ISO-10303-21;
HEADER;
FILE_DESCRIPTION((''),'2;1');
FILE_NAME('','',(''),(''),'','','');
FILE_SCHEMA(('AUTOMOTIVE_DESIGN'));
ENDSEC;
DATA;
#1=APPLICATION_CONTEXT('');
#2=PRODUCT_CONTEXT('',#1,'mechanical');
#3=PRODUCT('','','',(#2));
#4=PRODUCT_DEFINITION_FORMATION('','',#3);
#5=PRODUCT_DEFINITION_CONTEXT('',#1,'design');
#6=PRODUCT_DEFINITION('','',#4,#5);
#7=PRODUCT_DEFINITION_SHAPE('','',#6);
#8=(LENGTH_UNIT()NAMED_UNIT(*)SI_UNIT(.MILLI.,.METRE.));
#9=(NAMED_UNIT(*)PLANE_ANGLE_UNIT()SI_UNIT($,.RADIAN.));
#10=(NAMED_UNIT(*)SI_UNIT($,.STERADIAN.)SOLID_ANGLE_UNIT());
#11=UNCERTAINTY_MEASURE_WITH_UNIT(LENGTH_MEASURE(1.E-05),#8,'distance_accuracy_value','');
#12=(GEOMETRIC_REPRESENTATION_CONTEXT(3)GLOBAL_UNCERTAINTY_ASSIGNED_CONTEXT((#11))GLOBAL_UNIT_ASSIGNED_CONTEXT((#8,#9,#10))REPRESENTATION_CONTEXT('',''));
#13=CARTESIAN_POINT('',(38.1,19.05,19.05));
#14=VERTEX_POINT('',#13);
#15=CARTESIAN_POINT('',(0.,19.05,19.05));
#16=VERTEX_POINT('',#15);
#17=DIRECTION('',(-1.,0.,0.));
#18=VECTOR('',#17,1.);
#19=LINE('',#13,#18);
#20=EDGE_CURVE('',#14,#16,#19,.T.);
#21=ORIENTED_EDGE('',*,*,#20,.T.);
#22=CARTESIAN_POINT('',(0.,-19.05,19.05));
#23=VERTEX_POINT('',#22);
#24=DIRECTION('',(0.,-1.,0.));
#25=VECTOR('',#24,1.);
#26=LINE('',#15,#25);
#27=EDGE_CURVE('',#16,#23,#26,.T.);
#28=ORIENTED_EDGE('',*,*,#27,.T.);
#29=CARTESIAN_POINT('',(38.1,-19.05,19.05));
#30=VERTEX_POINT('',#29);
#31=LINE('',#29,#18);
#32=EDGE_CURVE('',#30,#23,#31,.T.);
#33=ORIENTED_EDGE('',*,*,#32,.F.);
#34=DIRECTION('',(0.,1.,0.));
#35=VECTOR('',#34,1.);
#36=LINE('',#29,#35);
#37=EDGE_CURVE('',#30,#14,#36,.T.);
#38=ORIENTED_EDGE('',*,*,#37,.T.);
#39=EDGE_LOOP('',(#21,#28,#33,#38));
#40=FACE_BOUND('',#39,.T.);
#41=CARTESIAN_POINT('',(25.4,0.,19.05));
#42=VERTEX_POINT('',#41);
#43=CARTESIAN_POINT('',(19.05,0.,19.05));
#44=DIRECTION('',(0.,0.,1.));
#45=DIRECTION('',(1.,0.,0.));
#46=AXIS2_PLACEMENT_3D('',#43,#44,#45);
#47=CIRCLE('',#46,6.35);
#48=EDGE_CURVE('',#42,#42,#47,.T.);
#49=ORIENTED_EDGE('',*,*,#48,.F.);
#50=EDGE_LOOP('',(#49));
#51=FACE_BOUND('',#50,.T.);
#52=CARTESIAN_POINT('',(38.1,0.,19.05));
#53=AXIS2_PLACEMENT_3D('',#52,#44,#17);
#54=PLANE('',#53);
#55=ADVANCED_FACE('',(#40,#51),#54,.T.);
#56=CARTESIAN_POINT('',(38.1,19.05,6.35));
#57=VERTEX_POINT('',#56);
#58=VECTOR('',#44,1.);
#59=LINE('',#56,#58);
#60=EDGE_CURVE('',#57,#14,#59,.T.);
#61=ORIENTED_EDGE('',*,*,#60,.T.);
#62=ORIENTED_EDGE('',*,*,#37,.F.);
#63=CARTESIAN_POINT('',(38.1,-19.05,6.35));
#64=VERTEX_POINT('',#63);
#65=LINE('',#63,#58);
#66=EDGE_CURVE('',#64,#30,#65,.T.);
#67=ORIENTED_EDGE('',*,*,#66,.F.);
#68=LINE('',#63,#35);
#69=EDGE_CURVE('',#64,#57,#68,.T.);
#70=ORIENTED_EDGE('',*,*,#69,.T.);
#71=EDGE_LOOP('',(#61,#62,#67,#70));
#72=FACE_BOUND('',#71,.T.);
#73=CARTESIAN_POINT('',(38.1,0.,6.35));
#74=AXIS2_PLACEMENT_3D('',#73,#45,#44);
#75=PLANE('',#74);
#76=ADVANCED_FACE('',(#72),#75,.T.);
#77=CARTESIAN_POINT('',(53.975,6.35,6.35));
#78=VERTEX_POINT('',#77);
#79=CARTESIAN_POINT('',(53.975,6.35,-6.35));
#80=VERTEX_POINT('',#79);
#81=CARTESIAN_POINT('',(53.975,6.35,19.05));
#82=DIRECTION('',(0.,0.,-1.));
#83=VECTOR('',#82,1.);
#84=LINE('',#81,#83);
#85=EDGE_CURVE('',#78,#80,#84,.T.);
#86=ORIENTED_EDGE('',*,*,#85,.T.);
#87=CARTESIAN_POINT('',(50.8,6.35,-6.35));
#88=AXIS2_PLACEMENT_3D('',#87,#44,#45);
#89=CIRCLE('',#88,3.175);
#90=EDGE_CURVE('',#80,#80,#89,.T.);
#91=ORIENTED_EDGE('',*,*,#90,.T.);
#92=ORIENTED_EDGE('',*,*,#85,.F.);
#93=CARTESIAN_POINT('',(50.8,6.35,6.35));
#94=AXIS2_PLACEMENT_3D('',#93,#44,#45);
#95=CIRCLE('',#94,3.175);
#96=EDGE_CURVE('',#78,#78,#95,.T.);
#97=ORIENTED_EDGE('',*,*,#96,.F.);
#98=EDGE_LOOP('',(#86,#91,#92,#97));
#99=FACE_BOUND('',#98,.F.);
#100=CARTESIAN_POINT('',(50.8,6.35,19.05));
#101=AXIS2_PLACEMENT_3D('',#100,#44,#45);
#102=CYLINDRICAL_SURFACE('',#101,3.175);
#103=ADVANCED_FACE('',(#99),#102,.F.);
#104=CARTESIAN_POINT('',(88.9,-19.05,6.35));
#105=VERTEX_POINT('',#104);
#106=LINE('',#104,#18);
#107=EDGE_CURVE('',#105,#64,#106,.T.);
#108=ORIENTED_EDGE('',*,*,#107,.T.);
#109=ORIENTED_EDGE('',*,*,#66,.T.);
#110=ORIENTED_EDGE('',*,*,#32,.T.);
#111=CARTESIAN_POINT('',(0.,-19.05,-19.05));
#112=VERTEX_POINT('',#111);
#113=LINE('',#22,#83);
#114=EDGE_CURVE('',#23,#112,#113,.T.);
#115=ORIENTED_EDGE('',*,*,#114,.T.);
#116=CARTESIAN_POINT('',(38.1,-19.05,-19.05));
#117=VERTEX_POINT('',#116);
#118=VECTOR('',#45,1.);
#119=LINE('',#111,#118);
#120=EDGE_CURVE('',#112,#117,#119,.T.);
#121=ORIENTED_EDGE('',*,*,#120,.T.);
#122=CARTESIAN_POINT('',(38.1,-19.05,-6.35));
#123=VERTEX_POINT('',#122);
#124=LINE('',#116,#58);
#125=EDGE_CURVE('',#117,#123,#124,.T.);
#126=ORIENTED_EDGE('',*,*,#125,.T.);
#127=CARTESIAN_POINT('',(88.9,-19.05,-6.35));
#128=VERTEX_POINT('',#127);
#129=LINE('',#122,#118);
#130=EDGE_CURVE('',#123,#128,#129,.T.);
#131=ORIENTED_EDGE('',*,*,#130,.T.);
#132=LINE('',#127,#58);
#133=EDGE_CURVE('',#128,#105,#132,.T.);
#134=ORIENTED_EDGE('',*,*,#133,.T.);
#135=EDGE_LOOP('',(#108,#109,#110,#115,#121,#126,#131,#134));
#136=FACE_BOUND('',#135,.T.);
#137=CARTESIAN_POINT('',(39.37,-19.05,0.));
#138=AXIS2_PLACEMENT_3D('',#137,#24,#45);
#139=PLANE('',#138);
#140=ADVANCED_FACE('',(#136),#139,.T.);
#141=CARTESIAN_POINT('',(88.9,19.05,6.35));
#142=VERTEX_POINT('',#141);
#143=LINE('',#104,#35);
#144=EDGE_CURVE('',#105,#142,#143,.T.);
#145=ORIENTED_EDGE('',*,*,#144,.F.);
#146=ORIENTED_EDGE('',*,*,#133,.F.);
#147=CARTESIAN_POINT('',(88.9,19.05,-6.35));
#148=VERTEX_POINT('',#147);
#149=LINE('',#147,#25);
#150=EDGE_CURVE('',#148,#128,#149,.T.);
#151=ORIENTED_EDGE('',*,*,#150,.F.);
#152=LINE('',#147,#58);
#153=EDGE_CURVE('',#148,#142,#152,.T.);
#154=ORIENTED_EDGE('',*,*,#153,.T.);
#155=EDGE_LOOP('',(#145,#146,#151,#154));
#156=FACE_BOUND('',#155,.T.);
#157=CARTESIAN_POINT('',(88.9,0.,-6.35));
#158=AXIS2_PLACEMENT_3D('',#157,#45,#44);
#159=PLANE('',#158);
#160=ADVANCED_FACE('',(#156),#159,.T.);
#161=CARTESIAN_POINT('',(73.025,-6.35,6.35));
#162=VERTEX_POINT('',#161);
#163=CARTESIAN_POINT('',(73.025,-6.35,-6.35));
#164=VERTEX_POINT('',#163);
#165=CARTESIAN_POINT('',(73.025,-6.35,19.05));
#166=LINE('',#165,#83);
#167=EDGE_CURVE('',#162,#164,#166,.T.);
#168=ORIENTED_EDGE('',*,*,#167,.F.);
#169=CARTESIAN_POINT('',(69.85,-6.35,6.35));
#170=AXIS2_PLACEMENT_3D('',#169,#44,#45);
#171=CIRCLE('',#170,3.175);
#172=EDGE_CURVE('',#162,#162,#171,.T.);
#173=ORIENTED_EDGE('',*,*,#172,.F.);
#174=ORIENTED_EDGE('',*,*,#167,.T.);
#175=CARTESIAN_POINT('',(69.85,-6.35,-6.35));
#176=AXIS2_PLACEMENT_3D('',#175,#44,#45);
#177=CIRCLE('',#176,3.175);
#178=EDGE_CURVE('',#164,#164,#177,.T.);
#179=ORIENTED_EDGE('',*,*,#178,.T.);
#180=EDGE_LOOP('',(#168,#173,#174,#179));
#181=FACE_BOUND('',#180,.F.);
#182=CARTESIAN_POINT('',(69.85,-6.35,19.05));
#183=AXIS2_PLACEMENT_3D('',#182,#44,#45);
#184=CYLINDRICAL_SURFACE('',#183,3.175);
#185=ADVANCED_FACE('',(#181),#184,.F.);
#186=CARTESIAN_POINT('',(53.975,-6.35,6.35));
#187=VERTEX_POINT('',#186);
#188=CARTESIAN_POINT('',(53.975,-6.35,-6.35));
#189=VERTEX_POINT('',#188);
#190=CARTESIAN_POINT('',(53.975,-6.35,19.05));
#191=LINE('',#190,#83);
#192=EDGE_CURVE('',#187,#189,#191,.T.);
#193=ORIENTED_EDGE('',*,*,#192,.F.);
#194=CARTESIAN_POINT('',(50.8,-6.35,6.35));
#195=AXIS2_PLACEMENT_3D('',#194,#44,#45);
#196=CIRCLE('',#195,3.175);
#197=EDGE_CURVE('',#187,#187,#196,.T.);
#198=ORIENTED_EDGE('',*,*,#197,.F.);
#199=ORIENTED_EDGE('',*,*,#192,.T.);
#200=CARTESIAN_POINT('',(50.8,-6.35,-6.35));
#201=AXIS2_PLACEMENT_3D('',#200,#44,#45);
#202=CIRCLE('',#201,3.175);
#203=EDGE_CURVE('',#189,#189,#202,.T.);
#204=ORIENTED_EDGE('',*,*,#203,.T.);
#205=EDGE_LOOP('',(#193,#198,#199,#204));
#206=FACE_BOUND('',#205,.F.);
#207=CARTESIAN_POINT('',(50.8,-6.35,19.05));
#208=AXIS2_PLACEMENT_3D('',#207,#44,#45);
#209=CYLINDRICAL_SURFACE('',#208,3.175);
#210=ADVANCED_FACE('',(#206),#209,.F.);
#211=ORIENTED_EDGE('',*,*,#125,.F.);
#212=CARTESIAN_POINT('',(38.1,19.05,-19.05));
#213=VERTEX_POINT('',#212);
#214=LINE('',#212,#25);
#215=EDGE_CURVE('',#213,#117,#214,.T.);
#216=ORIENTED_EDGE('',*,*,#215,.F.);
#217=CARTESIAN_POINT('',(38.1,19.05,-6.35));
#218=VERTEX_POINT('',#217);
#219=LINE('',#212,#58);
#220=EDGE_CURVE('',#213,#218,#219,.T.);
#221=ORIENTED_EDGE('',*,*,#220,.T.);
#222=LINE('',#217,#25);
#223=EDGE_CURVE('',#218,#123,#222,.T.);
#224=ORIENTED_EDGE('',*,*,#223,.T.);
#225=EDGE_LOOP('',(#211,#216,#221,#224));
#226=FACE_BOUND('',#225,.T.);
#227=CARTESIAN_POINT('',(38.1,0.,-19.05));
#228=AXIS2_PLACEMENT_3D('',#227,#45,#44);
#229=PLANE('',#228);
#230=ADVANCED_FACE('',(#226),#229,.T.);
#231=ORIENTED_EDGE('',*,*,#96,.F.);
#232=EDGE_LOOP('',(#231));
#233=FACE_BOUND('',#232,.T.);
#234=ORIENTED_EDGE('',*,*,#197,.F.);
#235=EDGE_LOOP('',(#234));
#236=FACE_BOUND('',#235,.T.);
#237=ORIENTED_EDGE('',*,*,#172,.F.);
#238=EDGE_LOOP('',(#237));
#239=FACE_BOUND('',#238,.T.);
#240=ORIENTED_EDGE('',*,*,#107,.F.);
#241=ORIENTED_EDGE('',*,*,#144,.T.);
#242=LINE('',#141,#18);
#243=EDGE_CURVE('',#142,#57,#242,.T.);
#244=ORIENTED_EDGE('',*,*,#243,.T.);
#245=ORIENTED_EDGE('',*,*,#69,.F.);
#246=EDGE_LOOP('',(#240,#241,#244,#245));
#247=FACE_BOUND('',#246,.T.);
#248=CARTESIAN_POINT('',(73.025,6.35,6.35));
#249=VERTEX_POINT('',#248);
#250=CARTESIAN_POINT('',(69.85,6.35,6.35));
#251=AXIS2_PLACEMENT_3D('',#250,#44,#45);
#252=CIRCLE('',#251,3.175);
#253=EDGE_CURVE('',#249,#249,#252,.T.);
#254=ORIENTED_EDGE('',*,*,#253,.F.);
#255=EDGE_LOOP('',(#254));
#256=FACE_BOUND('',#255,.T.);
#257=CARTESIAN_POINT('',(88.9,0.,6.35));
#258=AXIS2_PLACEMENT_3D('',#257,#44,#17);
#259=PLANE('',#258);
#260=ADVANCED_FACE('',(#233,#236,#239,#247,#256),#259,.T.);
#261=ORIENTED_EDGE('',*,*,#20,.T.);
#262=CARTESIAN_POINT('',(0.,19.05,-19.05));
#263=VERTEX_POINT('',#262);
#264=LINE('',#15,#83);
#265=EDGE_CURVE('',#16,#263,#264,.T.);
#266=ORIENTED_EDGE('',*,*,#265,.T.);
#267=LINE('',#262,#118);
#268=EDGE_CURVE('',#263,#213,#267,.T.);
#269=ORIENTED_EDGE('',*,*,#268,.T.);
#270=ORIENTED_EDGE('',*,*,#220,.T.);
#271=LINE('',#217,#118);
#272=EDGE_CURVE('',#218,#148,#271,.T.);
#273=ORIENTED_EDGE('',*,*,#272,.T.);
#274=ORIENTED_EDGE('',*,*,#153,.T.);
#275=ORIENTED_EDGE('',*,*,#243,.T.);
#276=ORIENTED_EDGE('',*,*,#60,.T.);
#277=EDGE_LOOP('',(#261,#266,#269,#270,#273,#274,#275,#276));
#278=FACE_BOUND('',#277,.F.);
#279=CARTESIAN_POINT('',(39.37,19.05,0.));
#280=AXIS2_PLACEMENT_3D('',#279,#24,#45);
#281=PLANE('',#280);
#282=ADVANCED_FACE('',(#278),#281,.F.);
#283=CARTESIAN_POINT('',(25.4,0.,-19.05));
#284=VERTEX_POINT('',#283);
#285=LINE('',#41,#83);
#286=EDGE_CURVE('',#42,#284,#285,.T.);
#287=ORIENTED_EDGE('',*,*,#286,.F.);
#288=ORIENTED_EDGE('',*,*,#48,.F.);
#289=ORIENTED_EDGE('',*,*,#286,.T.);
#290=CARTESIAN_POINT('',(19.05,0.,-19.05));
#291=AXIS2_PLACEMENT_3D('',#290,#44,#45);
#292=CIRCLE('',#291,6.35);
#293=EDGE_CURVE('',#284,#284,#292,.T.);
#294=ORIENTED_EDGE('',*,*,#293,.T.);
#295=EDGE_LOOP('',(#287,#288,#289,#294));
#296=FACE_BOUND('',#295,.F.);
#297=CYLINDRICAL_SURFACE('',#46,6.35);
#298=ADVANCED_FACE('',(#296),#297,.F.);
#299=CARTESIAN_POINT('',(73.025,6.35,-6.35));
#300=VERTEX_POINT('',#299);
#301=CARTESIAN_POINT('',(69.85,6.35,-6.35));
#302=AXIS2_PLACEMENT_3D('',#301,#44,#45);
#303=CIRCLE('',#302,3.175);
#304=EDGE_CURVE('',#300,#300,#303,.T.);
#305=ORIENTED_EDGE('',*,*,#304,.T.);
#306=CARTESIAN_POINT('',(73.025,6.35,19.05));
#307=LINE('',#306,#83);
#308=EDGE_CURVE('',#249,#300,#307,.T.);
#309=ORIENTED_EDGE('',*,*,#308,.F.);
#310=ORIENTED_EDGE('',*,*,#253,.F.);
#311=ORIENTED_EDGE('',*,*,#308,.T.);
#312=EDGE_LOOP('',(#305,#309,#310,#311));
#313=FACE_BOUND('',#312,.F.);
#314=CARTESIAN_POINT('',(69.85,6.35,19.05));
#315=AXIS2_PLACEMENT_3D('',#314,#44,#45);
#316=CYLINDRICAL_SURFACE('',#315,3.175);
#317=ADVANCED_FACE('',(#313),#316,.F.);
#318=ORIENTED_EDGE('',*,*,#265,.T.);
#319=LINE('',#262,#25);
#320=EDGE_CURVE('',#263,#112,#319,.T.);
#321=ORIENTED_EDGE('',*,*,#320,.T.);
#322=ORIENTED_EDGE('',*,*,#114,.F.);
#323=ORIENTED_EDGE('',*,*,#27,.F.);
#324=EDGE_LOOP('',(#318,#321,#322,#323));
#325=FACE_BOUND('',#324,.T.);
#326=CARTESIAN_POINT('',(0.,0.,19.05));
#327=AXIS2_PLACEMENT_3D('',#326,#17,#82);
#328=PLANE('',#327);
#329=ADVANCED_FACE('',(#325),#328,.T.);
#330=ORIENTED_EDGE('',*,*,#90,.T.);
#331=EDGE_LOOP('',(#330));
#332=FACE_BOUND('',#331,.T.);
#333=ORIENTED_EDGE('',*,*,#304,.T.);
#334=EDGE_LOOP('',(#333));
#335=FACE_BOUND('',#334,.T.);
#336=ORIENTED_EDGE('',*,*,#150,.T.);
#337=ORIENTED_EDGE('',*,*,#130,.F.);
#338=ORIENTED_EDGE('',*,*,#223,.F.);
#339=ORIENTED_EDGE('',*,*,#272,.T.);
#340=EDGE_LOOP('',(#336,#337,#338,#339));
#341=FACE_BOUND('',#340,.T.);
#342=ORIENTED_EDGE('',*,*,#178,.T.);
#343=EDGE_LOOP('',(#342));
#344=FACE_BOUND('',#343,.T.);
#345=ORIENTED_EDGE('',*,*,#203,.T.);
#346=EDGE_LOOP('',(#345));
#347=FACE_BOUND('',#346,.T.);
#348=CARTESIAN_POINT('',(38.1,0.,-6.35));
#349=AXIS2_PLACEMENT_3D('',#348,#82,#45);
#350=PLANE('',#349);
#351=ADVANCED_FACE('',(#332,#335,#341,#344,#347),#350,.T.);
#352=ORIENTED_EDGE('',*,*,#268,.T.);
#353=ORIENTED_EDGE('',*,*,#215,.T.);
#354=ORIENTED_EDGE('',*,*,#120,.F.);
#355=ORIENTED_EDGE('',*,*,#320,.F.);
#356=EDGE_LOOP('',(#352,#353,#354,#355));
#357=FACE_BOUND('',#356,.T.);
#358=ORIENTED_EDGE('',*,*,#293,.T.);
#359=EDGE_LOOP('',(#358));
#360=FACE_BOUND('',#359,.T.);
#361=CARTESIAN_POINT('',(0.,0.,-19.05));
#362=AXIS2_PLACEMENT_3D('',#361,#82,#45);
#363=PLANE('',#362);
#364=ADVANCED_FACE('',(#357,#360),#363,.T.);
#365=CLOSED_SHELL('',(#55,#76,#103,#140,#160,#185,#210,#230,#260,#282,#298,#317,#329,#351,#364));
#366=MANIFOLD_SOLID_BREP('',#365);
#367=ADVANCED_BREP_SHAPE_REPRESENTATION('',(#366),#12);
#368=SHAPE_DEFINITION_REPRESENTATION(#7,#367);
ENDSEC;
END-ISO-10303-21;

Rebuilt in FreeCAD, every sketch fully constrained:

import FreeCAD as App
import Part
import Sketcher

V = App.Vector
Q = App.Units.Quantity


def add_polygon(sketch, points):
    """Adds a closed chain of lines whose ends are joined by coincident constraints."""
    first, n = sketch.GeometryCount, len(points)
    for a, b in zip(points, points[1:] + points[:1]):
        sketch.addGeometry(Part.LineSegment(App.Vector(*a, 0), App.Vector(*b, 0)), False)
    for i in range(n):
        sketch.addConstraint(Sketcher.Constraint("Coincident", first + i, 2, first + (i + 1) % n, 1))

doc = App.newDocument("Part")
body = doc.addObject("PartDesign::Body", "Body")

sketch1 = body.newObject("Sketcher::SketchObject", "Sketch")
sketch1.AttachmentSupport = (doc.getObject("XZ_Plane"), [""])
sketch1.MapMode = "FlatFace"
add_polygon(sketch1, [(38.1, 19.05), (0, 19.05), (0, -19.05), (38.1, -19.05), (38.1, -6.35), (88.9, -6.35), (88.9, 6.35), (38.1, 6.35)])
sketch1.addConstraint([
    Sketcher.Constraint("Horizontal", 0),
    Sketcher.Constraint("Vertical", 1),
    Sketcher.Constraint("Horizontal", 2),
    Sketcher.Constraint("Vertical", 3),
    Sketcher.Constraint("Horizontal", 4),
    Sketcher.Constraint("Vertical", 5),
    Sketcher.Constraint("Horizontal", 6),
    Sketcher.Constraint("Vertical", 7),
    Sketcher.Constraint("Symmetric", 0, 2, 1, 2, -1, 1),
    Sketcher.Constraint("Symmetric", 3, 2, 6, 2, -1),
    Sketcher.Constraint("Equal", 2, 1),
    Sketcher.Constraint("Equal", 3, 5),
    Sketcher.Constraint("DistanceX", 4, 1, 4, 2, Q("2 in")),
    Sketcher.Constraint("DistanceX", 0, 2, 0, 1, Q("1.5 in")),
])
pad1 = body.newObject("PartDesign::Pad", "Pad")
pad1.Profile = sketch1
pad1.Length = Q("1.5 in")
pad1.Midplane = True

sketch2 = body.newObject("Sketcher::SketchObject", "Sketch001")
sketch2.AttachmentSupport = (doc.getObject("XY_Plane"), [""])
sketch2.MapMode = "FlatFace"
sketch2.AttachmentOffset = App.Placement(V(0, 0, 0.75 * 25.4), App.Rotation())
sketch2.addGeometry([
    Part.Circle(V(19.05, 0, 0), V(0, 0, 1), 6.35),
    Part.Circle(V(50.8, 6.35, 0), V(0, 0, 1), 3.175),
    Part.Circle(V(50.8, -6.35, 0), V(0, 0, 1), 3.175),
    Part.Circle(V(69.85, -6.35, 0), V(0, 0, 1), 3.175),
    Part.Circle(V(69.85, 6.35, 0), V(0, 0, 1), 3.175),
], False)
sketch2.addConstraint([
    Sketcher.Constraint("Equal", 1, 2),
    Sketcher.Constraint("Equal", 2, 3),
    Sketcher.Constraint("Equal", 3, 4),
    Sketcher.Constraint("Symmetric", 1, 3, 2, 3, -1),
    Sketcher.Constraint("Symmetric", 3, 3, 4, 3, -1),
    Sketcher.Constraint("PointOnObject", 0, 3, -1),
    Sketcher.Constraint("Horizontal", 2, 3, 3, 3),
    Sketcher.Constraint("Diameter", 0, Q("0.5 in")),
    Sketcher.Constraint("Diameter", 1, Q("0.25 in")),
    Sketcher.Constraint("DistanceX", -1, 1, 1, 3, Q("2 in")),
    Sketcher.Constraint("DistanceX", 0, 3, 3, 3, Q("2 in")),
    Sketcher.Constraint("DistanceY", 2, 3, 1, 3, Q("0.5 in")),
    Sketcher.Constraint("DistanceX", -1, 1, 0, 3, Q("0.75 in")),
])
pocket1 = body.newObject("PartDesign::Pocket", "Pocket")
pocket1.Profile = sketch2
pocket1.Type = "ThroughAll"

doc.recompute()
